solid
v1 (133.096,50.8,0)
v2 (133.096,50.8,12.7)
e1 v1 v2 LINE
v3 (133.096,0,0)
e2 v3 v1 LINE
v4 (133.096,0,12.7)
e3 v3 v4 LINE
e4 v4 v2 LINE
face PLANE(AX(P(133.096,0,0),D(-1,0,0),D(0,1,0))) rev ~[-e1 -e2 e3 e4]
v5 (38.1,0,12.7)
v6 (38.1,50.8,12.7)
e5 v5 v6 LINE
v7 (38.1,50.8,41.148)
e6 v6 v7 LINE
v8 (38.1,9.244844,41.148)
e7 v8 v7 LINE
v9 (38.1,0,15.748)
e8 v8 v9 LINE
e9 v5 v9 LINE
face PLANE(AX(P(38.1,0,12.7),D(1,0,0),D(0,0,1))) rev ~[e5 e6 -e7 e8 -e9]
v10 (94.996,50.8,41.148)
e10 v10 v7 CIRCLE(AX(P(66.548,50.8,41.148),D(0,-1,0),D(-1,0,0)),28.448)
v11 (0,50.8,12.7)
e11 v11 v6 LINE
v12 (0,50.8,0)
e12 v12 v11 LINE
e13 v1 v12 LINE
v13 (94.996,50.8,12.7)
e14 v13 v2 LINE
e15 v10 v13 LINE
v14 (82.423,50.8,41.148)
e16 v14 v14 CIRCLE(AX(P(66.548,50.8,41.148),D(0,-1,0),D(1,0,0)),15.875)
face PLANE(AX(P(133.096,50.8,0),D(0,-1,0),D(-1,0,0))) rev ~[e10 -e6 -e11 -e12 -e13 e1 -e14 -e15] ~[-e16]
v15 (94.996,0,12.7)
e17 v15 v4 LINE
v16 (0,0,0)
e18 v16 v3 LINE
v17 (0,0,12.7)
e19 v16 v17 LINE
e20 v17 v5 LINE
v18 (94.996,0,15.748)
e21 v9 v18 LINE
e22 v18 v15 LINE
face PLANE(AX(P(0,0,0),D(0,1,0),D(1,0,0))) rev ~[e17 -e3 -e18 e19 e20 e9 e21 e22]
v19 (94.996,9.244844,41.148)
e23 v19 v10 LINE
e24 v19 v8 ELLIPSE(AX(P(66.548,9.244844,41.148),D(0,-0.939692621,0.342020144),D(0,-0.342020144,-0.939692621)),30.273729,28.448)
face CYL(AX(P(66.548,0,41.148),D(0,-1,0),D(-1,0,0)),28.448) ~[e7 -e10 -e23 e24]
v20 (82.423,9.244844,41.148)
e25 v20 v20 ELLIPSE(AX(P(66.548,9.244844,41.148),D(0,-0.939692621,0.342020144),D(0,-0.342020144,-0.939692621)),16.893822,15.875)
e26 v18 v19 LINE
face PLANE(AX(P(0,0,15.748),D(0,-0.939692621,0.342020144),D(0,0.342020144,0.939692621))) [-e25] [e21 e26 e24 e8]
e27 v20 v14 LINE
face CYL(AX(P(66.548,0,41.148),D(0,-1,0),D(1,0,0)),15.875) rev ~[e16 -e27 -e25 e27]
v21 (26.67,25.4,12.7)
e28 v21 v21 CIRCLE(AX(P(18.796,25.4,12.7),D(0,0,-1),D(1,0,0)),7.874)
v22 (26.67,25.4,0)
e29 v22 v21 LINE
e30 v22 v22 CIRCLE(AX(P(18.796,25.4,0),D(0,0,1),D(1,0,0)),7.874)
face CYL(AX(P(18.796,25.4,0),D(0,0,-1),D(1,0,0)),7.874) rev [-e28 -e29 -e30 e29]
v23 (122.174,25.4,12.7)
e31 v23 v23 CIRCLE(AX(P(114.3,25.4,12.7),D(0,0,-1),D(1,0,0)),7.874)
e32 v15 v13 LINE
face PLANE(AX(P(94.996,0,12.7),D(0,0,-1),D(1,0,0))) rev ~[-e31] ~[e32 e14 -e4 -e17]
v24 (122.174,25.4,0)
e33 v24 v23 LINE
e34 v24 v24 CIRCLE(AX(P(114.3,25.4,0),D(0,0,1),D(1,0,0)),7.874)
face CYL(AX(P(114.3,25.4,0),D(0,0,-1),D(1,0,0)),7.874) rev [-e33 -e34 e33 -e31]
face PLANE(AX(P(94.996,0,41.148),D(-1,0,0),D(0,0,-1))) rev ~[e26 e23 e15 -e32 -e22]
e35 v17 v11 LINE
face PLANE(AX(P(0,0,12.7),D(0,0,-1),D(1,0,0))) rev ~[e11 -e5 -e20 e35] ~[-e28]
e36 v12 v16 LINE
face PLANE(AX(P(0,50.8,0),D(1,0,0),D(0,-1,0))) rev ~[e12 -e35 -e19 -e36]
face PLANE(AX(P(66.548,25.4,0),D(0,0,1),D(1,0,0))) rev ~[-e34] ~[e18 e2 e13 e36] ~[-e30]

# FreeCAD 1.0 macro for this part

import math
import FreeCAD as App
import Part
import Sketcher

V = App.Vector
Q = App.Units.Quantity

doc = App.newDocument("Part")
params = doc.addObject("Spreadsheet::Sheet", "Params")
for row, (alias, value) in enumerate([
    ("sketch1_diameter", "0.62 in"),
    ("sketch1_height", "2 in"),
    ("sketch1_width", "5.24 in"),
    ("pad1_length", "6 in"),
    ("sketch2_diameter", "1.25 in"),
    ("sketch2_radius", "1.12 in"),
    ("sketch2_width", "1.5 in"),
    ("sketch2_height", "5.5 in"),
    ("sketch2_height2", "1.12 in"),
    ("pocket1_length", "6.84 in"),
    ("pocket2_length", "7.34 in"),
], start=1):
    params.set(f"A{row}", alias)
    params.set(f"B{row}", "=" + value)
    params.setAlias(f"B{row}", alias)

body = doc.addObject("PartDesign::Body", "Body")

sketch1 = doc.addObject("Sketcher::SketchObject", "Sketch")
body.addObject(sketch1)
sketch1.AttachmentSupport = (doc.XY_Plane, [""])
sketch1.MapMode = "FlatFace"
sketch1.addGeometry(Part.LineSegment(V(0, 51, 0), V(0, 0, 0)), False)
sketch1.addGeometry(Part.LineSegment(V(0, 0, 0), V(133, 0, 0)), False)
sketch1.addGeometry(Part.LineSegment(V(133, 0, 0), V(133, 51, 0)), False)
sketch1.addGeometry(Part.LineSegment(V(133, 51, 0), V(0, 51, 0)), False)
sketch1.addGeometry(Part.Circle(V(19, 25, 0), V(0, 0, 1), 8), False)
sketch1.addGeometry(Part.Circle(V(114, 25, 0), V(0, 0, 1), 8), False)
sketch1.addConstraint(Sketcher.Constraint("Coincident", 0, 2, 1, 1))
sketch1.addConstraint(Sketcher.Constraint("Coincident", 1, 2, 2, 1))
sketch1.addConstraint(Sketcher.Constraint("Coincident", 2, 2, 3, 1))
sketch1.addConstraint(Sketcher.Constraint("Coincident", 3, 2, 0, 1))
sketch1.addConstraint(Sketcher.Constraint("Vertical", 0))
sketch1.addConstraint(Sketcher.Constraint("Horizontal", 1))
sketch1.addConstraint(Sketcher.Constraint("Vertical", 2))
sketch1.addConstraint(Sketcher.Constraint("Horizontal", 3))
sketch1.addConstraint(Sketcher.Constraint("Coincident", 0, 2, -1, 1))
sketch1.addConstraint(Sketcher.Constraint("Equal", 4, 5))
sketch1.addConstraint(Sketcher.Constraint("Horizontal", 4, 3, 5, 3))
sketch1.addConstraint(Sketcher.Constraint("Diameter", 4, Q("0.62 in")))
sketch1.addConstraint(Sketcher.Constraint("DistanceY", 0, 2, 0, 1, Q("2 in")))
sketch1.addConstraint(Sketcher.Constraint("DistanceY", -1, 1, 4, 3, Q("1 in")))
sketch1.addConstraint(Sketcher.Constraint("DistanceX", 1, 1, 1, 2, Q("5.24 in")))
sketch1.addConstraint(Sketcher.Constraint("DistanceX", -1, 1, 5, 3, Q("4.5 in")))
sketch1.addConstraint(Sketcher.Constraint("DistanceX", 4, 3, 1, 2, Q("4.5 in")))
sketch1.setExpression("Constraints[11]", "Params.sketch1_diameter")
sketch1.setExpression("Constraints[12]", "Params.sketch1_height")
sketch1.setExpression("Constraints[14]", "Params.sketch1_width")
pad1 = doc.addObject("PartDesign::Pad", "Pad")
body.addObject(pad1)
pad1.Profile = sketch1
pad1.setExpression("Length", "Params.pad1_length")

sketch2 = doc.addObject("Sketcher::SketchObject", "Sketch001")
body.addObject(sketch2)
sketch2.AttachmentSupport = (doc.XZ_Plane, [""])
sketch2.MapMode = "FlatFace"
sketch2.addGeometry(Part.LineSegment(V(0, 152, 0), V(0, 13, 0)), False)
sketch2.addGeometry(Part.LineSegment(V(0, 13, 0), V(38, 13, 0)), False)
sketch2.addGeometry(Part.LineSegment(V(38, 13, 0), V(38, 41, 0)), False)
sketch2.addGeometry(Part.ArcOfCircle(Part.Circle(V(67, 41, 0), V(0, 0, 1), 28), math.radians(0), math.radians(180)), False)
sketch2.addGeometry(Part.LineSegment(V(95, 41, 0), V(95, 13, 0)), False)
sketch2.addGeometry(Part.LineSegment(V(95, 13, 0), V(133, 13, 0)), False)
sketch2.addGeometry(Part.LineSegment(V(133, 13, 0), V(133, 152, 0)), False)
sketch2.addGeometry(Part.LineSegment(V(133, 152, 0), V(0, 152, 0)), False)
sketch2.addGeometry(Part.Circle(V(67, 41, 0), V(0, 0, 1), 16), False)
sketch2.addConstraint(Sketcher.Constraint("Coincident", 0, 2, 1, 1))
sketch2.addConstraint(Sketcher.Constraint("Coincident", 1, 2, 2, 1))
sketch2.addConstraint(Sketcher.Constraint("Tangent", 2, 2, 3, 2))
sketch2.addConstraint(Sketcher.Constraint("Tangent", 3, 1, 4, 1))
sketch2.addConstraint(Sketcher.Constraint("Coincident", 4, 2, 5, 1))
sketch2.addConstraint(Sketcher.Constraint("Coincident", 5, 2, 6, 1))
sketch2.addConstraint(Sketcher.Constraint("Coincident", 6, 2, 7, 1))
sketch2.addConstraint(Sketcher.Constraint("Coincident", 7, 2, 0, 1))
sketch2.addConstraint(Sketcher.Constraint("Vertical", 0))
sketch2.addConstraint(Sketcher.Constraint("Horizontal", 1))
sketch2.addConstraint(Sketcher.Constraint("Vertical", 2))
sketch2.addConstraint(Sketcher.Constraint("Vertical", 4))
sketch2.addConstraint(Sketcher.Constraint("Horizontal", 5))
sketch2.addConstraint(Sketcher.Constraint("Vertical", 6))
sketch2.addConstraint(Sketcher.Constraint("Horizontal", 7))
sketch2.addConstraint(Sketcher.Constraint("Coincident", 8, 3, 3, 3))
sketch2.addConstraint(Sketcher.Constraint("PointOnObject", 0, 2, -2))
sketch2.addConstraint(Sketcher.Constraint("Horizontal", 1, 2, 4, 2))
sketch2.addConstraint(Sketcher.Constraint("Equal", 1, 5))
sketch2.addConstraint(Sketcher.Constraint("Diameter", 8, Q("1.25 in")))
sketch2.addConstraint(Sketcher.Constraint("Radius", 3, Q("1.12 in")))
sketch2.addConstraint(Sketcher.Constraint("DistanceX", 1, 1, 1, 2, Q("1.5 in")))
sketch2.addConstraint(Sketcher.Constraint("DistanceY", 0, 2, 0, 1, Q("5.5 in")))
sketch2.addConstraint(Sketcher.Constraint("DistanceY", -1, 1, 6, 2, Q("6 in")))
sketch2.addConstraint(Sketcher.Constraint("DistanceY", 2, 1, 2, 2, Q("1.12 in")))
sketch2.setExpression("Constraints[19]", "Params.sketch2_diameter")
sketch2.setExpression("Constraints[20]", "Params.sketch2_radius")
sketch2.setExpression("Constraints[21]", "Params.sketch2_width")
sketch2.setExpression("Constraints[22]", "Params.sketch2_height")
sketch2.setExpression("Constraints[24]", "Params.sketch2_height2")
pocket1 = doc.addObject("PartDesign::Pocket", "Pocket")
body.addObject(pocket1)
pocket1.Profile = sketch2
pocket1.setExpression("Length", "Params.pocket1_length")

sketch3 = doc.addObject("Sketcher::SketchObject", "Sketch002")
body.addObject(sketch3)
sketch3.AttachmentSupport = (doc.YZ_Plane, [""])
sketch3.MapMode = "FlatFace"
sketch3.addGeometry(Part.LineSegment(V(0, 77, 0), V(0, 16, 0)), False)
sketch3.addGeometry(Part.LineSegment(V(0, 16, 0), V(22, 77, 0)), False)
sketch3.addGeometry(Part.LineSegment(V(22, 77, 0), V(0, 77, 0)), False)
sketch3.addConstraint(Sketcher.Constraint("Coincident", 0, 2, 1, 1))
sketch3.addConstraint(Sketcher.Constraint("Coincident", 1, 2, 2, 1))
sketch3.addConstraint(Sketcher.Constraint("Coincident", 2, 2, 0, 1))
sketch3.addConstraint(Sketcher.Constraint("Vertical", 0))
sketch3.addConstraint(Sketcher.Constraint("PointOnObject", 0, 2, -2))
sketch3.addConstraint(Sketcher.Constraint("Angle", 1, Q("70 deg")))
sketch3.addConstraint(Sketcher.Constraint("DistanceY", -1, 1, 0, 2, Q("0.62 in")))
sketch3.addConstraint(Sketcher.Constraint("DistanceY", 0, 2, 0, 1, Q("61.52785 mm")))
sketch3.addConstraint(Sketcher.Constraint("DistanceY", -1, 1, 1, 2, Q("77.39886 mm")))
pocket2 = doc.addObject("PartDesign::Pocket", "Pocket001")
body.addObject(pocket2)
pocket2.Profile = sketch3
pocket2.setExpression("Length", "Params.pocket2_length")
pocket2.Reversed = True

doc.recompute()
